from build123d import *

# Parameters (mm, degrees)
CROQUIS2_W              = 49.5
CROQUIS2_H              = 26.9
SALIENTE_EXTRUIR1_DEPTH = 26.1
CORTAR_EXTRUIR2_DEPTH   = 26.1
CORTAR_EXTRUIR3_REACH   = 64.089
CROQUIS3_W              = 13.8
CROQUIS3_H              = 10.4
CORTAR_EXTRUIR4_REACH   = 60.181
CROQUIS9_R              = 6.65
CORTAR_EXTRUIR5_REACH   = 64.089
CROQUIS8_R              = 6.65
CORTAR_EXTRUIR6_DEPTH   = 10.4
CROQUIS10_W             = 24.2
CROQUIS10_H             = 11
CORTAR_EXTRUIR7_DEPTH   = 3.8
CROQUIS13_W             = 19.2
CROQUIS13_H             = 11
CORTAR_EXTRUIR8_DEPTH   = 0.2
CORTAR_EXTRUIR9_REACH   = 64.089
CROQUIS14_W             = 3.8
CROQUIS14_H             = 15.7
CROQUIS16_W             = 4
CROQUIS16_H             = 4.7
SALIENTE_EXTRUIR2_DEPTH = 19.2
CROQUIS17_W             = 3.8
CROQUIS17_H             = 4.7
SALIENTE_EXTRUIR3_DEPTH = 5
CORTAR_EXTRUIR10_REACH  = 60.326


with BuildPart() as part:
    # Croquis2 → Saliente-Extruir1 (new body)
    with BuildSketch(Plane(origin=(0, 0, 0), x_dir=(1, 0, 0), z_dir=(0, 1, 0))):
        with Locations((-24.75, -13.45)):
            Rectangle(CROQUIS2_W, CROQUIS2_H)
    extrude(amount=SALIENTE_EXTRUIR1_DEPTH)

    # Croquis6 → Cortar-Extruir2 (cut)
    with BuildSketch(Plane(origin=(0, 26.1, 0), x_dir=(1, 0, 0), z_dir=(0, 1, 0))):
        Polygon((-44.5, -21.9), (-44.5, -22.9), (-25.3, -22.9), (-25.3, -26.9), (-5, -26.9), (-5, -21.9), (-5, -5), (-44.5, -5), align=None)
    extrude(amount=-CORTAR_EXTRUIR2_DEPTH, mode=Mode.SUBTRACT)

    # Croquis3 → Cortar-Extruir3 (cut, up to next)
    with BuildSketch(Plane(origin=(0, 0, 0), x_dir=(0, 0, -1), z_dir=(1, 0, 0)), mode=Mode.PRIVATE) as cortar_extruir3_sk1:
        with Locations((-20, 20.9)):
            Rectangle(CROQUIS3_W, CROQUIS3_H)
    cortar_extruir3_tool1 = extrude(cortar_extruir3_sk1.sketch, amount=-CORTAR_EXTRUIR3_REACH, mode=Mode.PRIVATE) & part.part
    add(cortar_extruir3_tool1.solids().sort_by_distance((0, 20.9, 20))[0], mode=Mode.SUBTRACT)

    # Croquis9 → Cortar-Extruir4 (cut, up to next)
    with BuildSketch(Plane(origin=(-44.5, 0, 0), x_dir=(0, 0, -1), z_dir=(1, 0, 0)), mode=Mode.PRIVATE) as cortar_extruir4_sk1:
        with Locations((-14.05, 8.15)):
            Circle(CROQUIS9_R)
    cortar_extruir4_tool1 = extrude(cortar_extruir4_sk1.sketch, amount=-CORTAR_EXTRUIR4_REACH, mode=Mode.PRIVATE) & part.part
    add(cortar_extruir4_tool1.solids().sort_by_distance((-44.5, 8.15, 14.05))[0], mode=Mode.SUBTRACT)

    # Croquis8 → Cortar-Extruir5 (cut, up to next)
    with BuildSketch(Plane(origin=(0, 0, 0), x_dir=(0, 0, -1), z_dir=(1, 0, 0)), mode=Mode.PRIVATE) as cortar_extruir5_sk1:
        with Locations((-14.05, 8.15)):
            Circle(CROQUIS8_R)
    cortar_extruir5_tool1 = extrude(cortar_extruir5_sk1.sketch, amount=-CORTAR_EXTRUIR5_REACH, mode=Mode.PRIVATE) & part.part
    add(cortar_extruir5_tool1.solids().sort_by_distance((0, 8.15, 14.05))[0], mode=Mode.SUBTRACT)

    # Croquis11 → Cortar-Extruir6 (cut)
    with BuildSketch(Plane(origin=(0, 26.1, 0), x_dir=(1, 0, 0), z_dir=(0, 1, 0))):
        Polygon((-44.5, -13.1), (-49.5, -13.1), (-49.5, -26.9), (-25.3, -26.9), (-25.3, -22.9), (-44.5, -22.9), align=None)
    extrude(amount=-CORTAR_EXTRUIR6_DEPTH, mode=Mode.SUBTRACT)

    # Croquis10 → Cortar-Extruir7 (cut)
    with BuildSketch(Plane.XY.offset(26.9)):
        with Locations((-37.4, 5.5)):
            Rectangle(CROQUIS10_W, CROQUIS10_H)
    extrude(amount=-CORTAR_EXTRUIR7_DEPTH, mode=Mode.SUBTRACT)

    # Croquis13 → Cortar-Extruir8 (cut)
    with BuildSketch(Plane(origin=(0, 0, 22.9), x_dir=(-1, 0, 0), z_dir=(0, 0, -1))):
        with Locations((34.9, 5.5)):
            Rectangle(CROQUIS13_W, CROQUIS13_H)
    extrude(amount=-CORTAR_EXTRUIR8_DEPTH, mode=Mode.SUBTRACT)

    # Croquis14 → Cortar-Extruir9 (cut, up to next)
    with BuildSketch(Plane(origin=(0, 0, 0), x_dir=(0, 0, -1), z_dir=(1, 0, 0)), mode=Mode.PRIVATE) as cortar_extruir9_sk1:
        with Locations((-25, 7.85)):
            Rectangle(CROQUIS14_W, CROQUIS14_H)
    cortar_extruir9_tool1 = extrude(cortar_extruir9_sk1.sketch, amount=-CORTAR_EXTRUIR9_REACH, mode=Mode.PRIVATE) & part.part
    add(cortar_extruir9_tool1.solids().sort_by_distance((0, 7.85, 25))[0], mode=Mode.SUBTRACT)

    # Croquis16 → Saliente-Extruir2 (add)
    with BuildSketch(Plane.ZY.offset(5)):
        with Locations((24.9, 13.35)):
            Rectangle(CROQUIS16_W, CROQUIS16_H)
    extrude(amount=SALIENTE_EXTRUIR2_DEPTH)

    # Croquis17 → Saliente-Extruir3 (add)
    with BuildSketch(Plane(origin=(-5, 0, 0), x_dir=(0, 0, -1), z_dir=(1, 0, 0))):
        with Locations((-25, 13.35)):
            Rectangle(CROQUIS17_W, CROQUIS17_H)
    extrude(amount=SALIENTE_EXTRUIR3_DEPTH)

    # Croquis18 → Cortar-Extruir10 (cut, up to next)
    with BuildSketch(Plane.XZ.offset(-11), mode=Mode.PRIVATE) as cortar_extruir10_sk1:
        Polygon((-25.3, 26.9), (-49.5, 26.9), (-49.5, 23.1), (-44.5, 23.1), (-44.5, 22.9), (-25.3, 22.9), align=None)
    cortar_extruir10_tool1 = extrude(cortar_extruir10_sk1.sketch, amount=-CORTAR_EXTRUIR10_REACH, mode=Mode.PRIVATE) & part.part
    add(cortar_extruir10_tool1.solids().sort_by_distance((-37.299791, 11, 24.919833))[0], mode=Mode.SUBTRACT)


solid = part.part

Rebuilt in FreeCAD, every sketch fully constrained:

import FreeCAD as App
import Part
import Sketcher

V = App.Vector


def add_polygon(sketch, points):
    """Adds a closed chain of lines whose ends are joined by coincident constraints."""
    first, n = sketch.GeometryCount, len(points)
    for a, b in zip(points, points[1:] + points[:1]):
        sketch.addGeometry(Part.LineSegment(App.Vector(*a, 0), App.Vector(*b, 0)), False)
    for i in range(n):
        sketch.addConstraint(Sketcher.Constraint("Coincident", first + i, 2, first + (i + 1) % n, 1))

doc = App.newDocument("Part")
body = doc.addObject("PartDesign::Body", "Body")

# Sketch on XZ plane
sketch1 = body.newObject("Sketcher::SketchObject", "Sketch")
sketch1.AttachmentSupport = (doc.getObject("XZ_Plane"), [""])
sketch1.MapMode = "FlatFace"
add_polygon(sketch1, [(-49.5, 0), (-49.5, 26.9), (0, 26.9), (0, 0)])  # lines 0-3
sketch1.addConstraint([
    Sketcher.Constraint("Vertical", 0),
    Sketcher.Constraint("Horizontal", 1),
    Sketcher.Constraint("Vertical", 2),
    Sketcher.Constraint("Horizontal", 3),
    Sketcher.Constraint("Coincident", 2, 2, -1, 1),
    Sketcher.Constraint("DistanceX", 1, 1, 1, 2, 49.5),
    Sketcher.Constraint("DistanceY", 0, 1, 0, 2, 26.9),
])
pad1 = body.newObject("PartDesign::Pad", "Pad")
pad1.Profile = sketch1
pad1.Length = 26.1
pad1.Reversed = True

# Sketch on XZ plane
sketch2 = body.newObject("Sketcher::SketchObject", "Sketch001")
sketch2.AttachmentSupport = (doc.getObject("XZ_Plane"), [""])
sketch2.MapMode = "FlatFace"
sketch2.AttachmentOffset = App.Placement(V(0, 0, -26.1), App.Rotation())
add_polygon(sketch2, [(-44.5, 22.9), (-25.3, 22.9), (-25.3, 26.9), (-5, 26.9), (-5, 5), (-44.5, 5)])  # lines 0-5
sketch2.addConstraint([
    Sketcher.Constraint("Horizontal", 0),
    Sketcher.Constraint("Vertical", 1),
    Sketcher.Constraint("Horizontal", 2),
    Sketcher.Constraint("Vertical", 3),
    Sketcher.Constraint("Horizontal", 4),
    Sketcher.Constraint("Vertical", 5),
    Sketcher.Constraint("DistanceY", 1, 1, 1, 2, 4.0),
    Sketcher.Constraint("DistanceX", 0, 1, 0, 2, 19.2),
    Sketcher.Constraint("DistanceX", 2, 1, 2, 2, 20.3),
    Sketcher.Constraint("DistanceY", 3, 2, 3, 1, 21.9),
    Sketcher.Constraint("DistanceX", 2, 2, -1, 1, 5.0),
    Sketcher.Constraint("DistanceY", -1, 1, 3, 2, 5.0),
])
pocket1 = body.newObject("PartDesign::Pocket", "Pocket")
pocket1.Profile = sketch2
pocket1.Length = 26.1
pocket1.Reversed = True

# Sketch on YZ plane
sketch3 = body.newObject("Sketcher::SketchObject", "Sketch002")
sketch3.AttachmentSupport = (doc.getObject("YZ_Plane"), [""])
sketch3.MapMode = "FlatFace"
add_polygon(sketch3, [(26.1, 26.9), (15.7, 26.9), (15.7, 13.1), (26.1, 13.1)])  # lines 0-3
sketch3.addConstraint([
    Sketcher.Constraint("Horizontal", 0),
    Sketcher.Constraint("Vertical", 1),
    Sketcher.Constraint("Horizontal", 2),
    Sketcher.Constraint("Vertical", 3),
    Sketcher.Constraint("DistanceX", 0, 2, 0, 1, 10.4),
    Sketcher.Constraint("DistanceY", 1, 2, 1, 1, 13.8),
    Sketcher.Constraint("DistanceX", -1, 1, 0, 2, 15.7),
    Sketcher.Constraint("DistanceY", -1, 1, 0, 2, 26.9),
])
pocket2 = body.newObject("PartDesign::Pocket", "Pocket001")
pocket2.Profile = sketch3
pocket2.Type = "UpToFirst"

# Sketch on YZ plane
sketch4 = body.newObject("Sketcher::SketchObject", "Sketch003")
sketch4.AttachmentSupport = (doc.getObject("YZ_Plane"), [""])
sketch4.MapMode = "FlatFace"
sketch4.AttachmentOffset = App.Placement(V(0, 0, -44.5), App.Rotation())
sketch4.addGeometry(Part.Circle(V(8.15, 14.05, 0), V(0, 0, 1), 6.65), False)
sketch4.addConstraint([
    Sketcher.Constraint("Diameter", 0, 13.3),
    Sketcher.Constraint("DistanceX", -1, 1, 0, 3, 8.15),
    Sketcher.Constraint("DistanceY", -1, 1, 0, 3, 14.05),
])
pocket3 = body.newObject("PartDesign::Pocket", "Pocket002")
pocket3.Profile = sketch4
pocket3.Type = "UpToFirst"

# Sketch on YZ plane
sketch5 = body.newObject("Sketcher::SketchObject", "Sketch004")
sketch5.AttachmentSupport = (doc.getObject("YZ_Plane"), [""])
sketch5.MapMode = "FlatFace"
sketch5.addGeometry(Part.Circle(V(8.15, 14.05, 0), V(0, 0, 1), 6.65), False)
sketch5.addConstraint([
    Sketcher.Constraint("Diameter", 0, 13.3),
    Sketcher.Constraint("DistanceX", -1, 1, 0, 3, 8.15),
    Sketcher.Constraint("DistanceY", -1, 1, 0, 3, 14.05),
])
pocket4 = body.newObject("PartDesign::Pocket", "Pocket003")
pocket4.Profile = sketch5
pocket4.Type = "UpToFirst"

# Sketch on XZ plane
sketch6 = body.newObject("Sketcher::SketchObject", "Sketch005")
sketch6.AttachmentSupport = (doc.getObject("XZ_Plane"), [""])
sketch6.MapMode = "FlatFace"
sketch6.AttachmentOffset = App.Placement(V(0, 0, -26.1), App.Rotation())
add_polygon(sketch6, [(-44.5, 13.1), (-49.5, 13.1), (-49.5, 26.9), (-25.3, 26.9), (-25.3, 22.9), (-44.5, 22.9)])  # lines 0-5
sketch6.addConstraint([
    Sketcher.Constraint("Horizontal", 0),
    Sketcher.Constraint("Vertical", 1),
    Sketcher.Constraint("Horizontal", 2),
    Sketcher.Constraint("Vertical", 3),
    Sketcher.Constraint("Horizontal", 4),
    Sketcher.Constraint("Vertical", 5),
    Sketcher.Constraint("DistanceX", 0, 2, 0, 1, 5.0),
    Sketcher.Constraint("DistanceY", 3, 2, 3, 1, 4.0),
    Sketcher.Constraint("DistanceX", 2, 1, 2, 2, 24.2),
    Sketcher.Constraint("DistanceY", 1, 1, 1, 2, 13.8),
    Sketcher.Constraint("DistanceX", 0, 2, -1, 1, 49.5),
    Sketcher.Constraint("DistanceY", -1, 1, 0, 2, 13.1),
])
pocket5 = body.newObject("PartDesign::Pocket", "Pocket004")
pocket5.Profile = sketch6
pocket5.Length = 10.4
pocket5.Reversed = True

# Sketch on XY plane
sketch7 = body.newObject("Sketcher::SketchObject", "Sketch006")
sketch7.AttachmentSupport = (doc.getObject("XY_Plane"), [""])
sketch7.MapMode = "FlatFace"
sketch7.AttachmentOffset = App.Placement(V(0, 0, 26.9), App.Rotation())
add_polygon(sketch7, [(-49.5, 11), (-49.5, 0), (-25.3, 0), (-25.3, 11)])  # lines 0-3
sketch7.addConstraint([
    Sketcher.Constraint("Vertical", 0),
    Sketcher.Constraint("Horizontal", 1),
    Sketcher.Constraint("Vertical", 2),
    Sketcher.Constraint("Horizontal", 3),
    Sketcher.Constraint("PointOnObject", 0, 2, -1),
    Sketcher.Constraint("DistanceY", 0, 2, 0, 1, 11.0),
    Sketcher.Constraint("DistanceX", 1, 1, 1, 2, 24.2),
    Sketcher.Constraint("DistanceX", 0, 2, -1, 1, 49.5),
])
pocket6 = body.newObject("PartDesign::Pocket", "Pocket005")
pocket6.Profile = sketch7
pocket6.Length = 3.8

# Sketch on XY plane
sketch8 = body.newObject("Sketcher::SketchObject", "Sketch007")
sketch8.AttachmentSupport = (doc.getObject("XY_Plane"), [""])
sketch8.MapMode = "FlatFace"
sketch8.AttachmentOffset = App.Placement(V(0, 0, 22.9), App.Rotation())
add_polygon(sketch8, [(-25.3, 11), (-25.3, 0), (-44.5, 0), (-44.5, 11)])  # lines 0-3
sketch8.addConstraint([
    Sketcher.Constraint("Vertical", 0),
    Sketcher.Constraint("Horizontal", 1),
    Sketcher.Constraint("Vertical", 2),
    Sketcher.Constraint("Horizontal", 3),
    Sketcher.Constraint("PointOnObject", 0, 2, -1),
    Sketcher.Constraint("DistanceY", 0, 2, 0, 1, 11.0),
    Sketcher.Constraint("DistanceX", 1, 2, 1, 1, 19.2),
    Sketcher.Constraint("DistanceX", 0, 2, -1, 1, 25.3),
])
pocket7 = body.newObject("PartDesign::Pocket", "Pocket006")
pocket7.Profile = sketch8
pocket7.Length = 0.2
pocket7.Reversed = True

# Sketch on YZ plane
sketch9 = body.newObject("Sketcher::SketchObject", "Sketch008")
sketch9.AttachmentSupport = (doc.getObject("YZ_Plane"), [""])
sketch9.MapMode = "FlatFace"
add_polygon(sketch9, [(15.7, 26.9), (0, 26.9), (0, 23.1), (15.7, 23.1)])  # lines 0-3
sketch9.addConstraint([
    Sketcher.Constraint("Horizontal", 0),
    Sketcher.Constraint("Vertical", 1),
    Sketcher.Constraint("Horizontal", 2),
    Sketcher.Constraint("Vertical", 3),
    Sketcher.Constraint("PointOnObject", 0, 2, -2),
    Sketcher.Constraint("DistanceX", 0, 2, 0, 1, 15.7),
    Sketcher.Constraint("DistanceY", 1, 2, 1, 1, 3.8),
    Sketcher.Constraint("DistanceY", -1, 1, 0, 2, 26.9),
])
pocket8 = body.newObject("PartDesign::Pocket", "Pocket007")
pocket8.Profile = sketch9
pocket8.Type = "UpToFirst"

# Sketch on YZ plane
sketch10 = body.newObject("Sketcher::SketchObject", "Sketch009")
sketch10.AttachmentSupport = (doc.getObject("YZ_Plane"), [""])
sketch10.MapMode = "FlatFace"
sketch10.AttachmentOffset = App.Placement(V(0, 0, -5), App.Rotation())
add_polygon(sketch10, [(15.7, 22.9), (11, 22.9), (11, 26.9), (15.7, 26.9)])  # lines 0-3
sketch10.addConstraint([
    Sketcher.Constraint("Horizontal", 0),
    Sketcher.Constraint("Vertical", 1),
    Sketcher.Constraint("Horizontal", 2),
    Sketcher.Constraint("Vertical", 3),
    Sketcher.Constraint("DistanceY", 1, 1, 1, 2, 4.0),
    Sketcher.Constraint("DistanceX", 0, 2, 0, 1, 4.7),
    Sketcher.Constraint("DistanceX", -1, 1, 0, 2, 11.0),
    Sketcher.Constraint("DistanceY", -1, 1, 0, 2, 22.9),
])
pad2 = body.newObject("PartDesign::Pad", "Pad001")
pad2.Profile = sketch10
pad2.Length = 19.2
pad2.Reversed = True

# Sketch on YZ plane
sketch11 = body.newObject("Sketcher::SketchObject", "Sketch010")
sketch11.AttachmentSupport = (doc.getObject("YZ_Plane"), [""])
sketch11.MapMode = "FlatFace"
sketch11.AttachmentOffset = App.Placement(V(0, 0, -5), App.Rotation())
add_polygon(sketch11, [(15.7, 26.9), (11, 26.9), (11, 23.1), (15.7, 23.1)])  # lines 0-3
sketch11.addConstraint([
    Sketcher.Constraint("Horizontal", 0),
    Sketcher.Constraint("Vertical", 1),
    Sketcher.Constraint("Horizontal", 2),
    Sketcher.Constraint("Vertical", 3),
    Sketcher.Constraint("DistanceX", 0, 2, 0, 1, 4.7),
    Sketcher.Constraint("DistanceY", 1, 2, 1, 1, 3.8),
    Sketcher.Constraint("DistanceX", -1, 1, 0, 2, 11.0),
    Sketcher.Constraint("DistanceY", -1, 1, 0, 2, 26.9),
])
pad3 = body.newObject("PartDesign::Pad", "Pad002")
pad3.Profile = sketch11
pad3.Length = 5

# Sketch on XZ plane
sketch12 = body.newObject("Sketcher::SketchObject", "Sketch011")
sketch12.AttachmentSupport = (doc.getObject("XZ_Plane"), [""])
sketch12.MapMode = "FlatFace"
sketch12.AttachmentOffset = App.Placement(V(0, 0, -11), App.Rotation())
add_polygon(sketch12, [(-25.3, 26.9), (-49.5, 26.9), (-49.5, 23.1), (-44.5, 23.1), (-44.5, 22.9), (-25.3, 22.9)])  # lines 0-5
sketch12.addConstraint([
    Sketcher.Constraint("Horizontal", 0),
    Sketcher.Constraint("Vertical", 1),
    Sketcher.Constraint("Horizontal", 2),
    Sketcher.Constraint("Vertical", 3),
    Sketcher.Constraint("Horizontal", 4),
    Sketcher.Constraint("Vertical", 5),
    Sketcher.Constraint("DistanceX", 2, 1, 2, 2, 5.0),
    Sketcher.Constraint("DistanceY", 5, 1, 5, 2, 4.0),
    Sketcher.Constraint("DistanceX", 0, 2, 0, 1, 24.2),
    Sketcher.Constraint("DistanceY", 1, 2, 1, 1, 3.8),
    Sketcher.Constraint("DistanceX", 0, 2, -1, 1, 49.5),
    Sketcher.Constraint("DistanceY", -1, 1, 0, 2, 26.9),
])
pocket9 = body.newObject("PartDesign::Pocket", "Pocket008")
pocket9.Profile = sketch12
pocket9.Type = "UpToFirst"

doc.recompute()
